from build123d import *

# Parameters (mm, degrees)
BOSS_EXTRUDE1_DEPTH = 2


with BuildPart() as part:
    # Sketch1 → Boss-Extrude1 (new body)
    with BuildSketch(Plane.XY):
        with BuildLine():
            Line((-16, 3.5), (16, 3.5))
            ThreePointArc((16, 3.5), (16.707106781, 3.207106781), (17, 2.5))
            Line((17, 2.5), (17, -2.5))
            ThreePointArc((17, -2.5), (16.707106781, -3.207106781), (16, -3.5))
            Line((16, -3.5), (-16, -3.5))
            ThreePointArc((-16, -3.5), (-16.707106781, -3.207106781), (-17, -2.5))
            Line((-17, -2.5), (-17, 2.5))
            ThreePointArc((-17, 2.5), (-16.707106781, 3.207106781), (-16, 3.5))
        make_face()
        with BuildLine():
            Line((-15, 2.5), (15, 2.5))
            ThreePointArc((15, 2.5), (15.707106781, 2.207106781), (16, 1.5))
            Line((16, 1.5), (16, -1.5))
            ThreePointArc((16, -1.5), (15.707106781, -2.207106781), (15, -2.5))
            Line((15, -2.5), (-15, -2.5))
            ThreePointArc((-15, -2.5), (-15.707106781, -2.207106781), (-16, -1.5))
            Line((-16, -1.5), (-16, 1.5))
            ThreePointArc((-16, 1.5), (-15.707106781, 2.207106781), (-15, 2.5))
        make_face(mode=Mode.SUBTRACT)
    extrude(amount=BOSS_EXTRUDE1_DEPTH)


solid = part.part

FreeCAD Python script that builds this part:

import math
import FreeCAD as App
import Part
import Sketcher

doc = App.newDocument("Part")
params = doc.addObject("Spreadsheet::Sheet", "Params")
for row, (alias, value) in enumerate([
    ("sketch1_radius", "1 mm"),
    ("sketch1_width", "32 mm"),
    ("sketch1_height", "5 mm"),
    ("pad1_length", "2 mm"),
], start=1):
    params.set(f"A{row}", alias)
    params.set(f"B{row}", "=" + value)
    params.setAlias(f"B{row}", alias)

body = doc.addObject("PartDesign::Body", "Body")

sketch1 = body.newObject("Sketcher::SketchObject", "Sketch")
sketch1.AttachmentSupport = (doc.getObject("XY_Plane"), [""])
sketch1.MapMode = "FlatFace"
sketch1.addGeometry([
    Part.LineSegment(App.Vector(16, 3.5, 0), App.Vector(-16, 3.5, 0)),
    Part.ArcOfCircle(Part.Circle(App.Vector(-16, 2.5, 0), App.Vector(0, 0, 1), 1), math.radians(90), math.radians(180)),
    Part.LineSegment(App.Vector(-17, 2.5, 0), App.Vector(-17, -2.5, 0)),
    Part.ArcOfCircle(Part.Circle(App.Vector(-16, -2.5, 0), App.Vector(0, 0, 1), 1), math.radians(-180), math.radians(-90)),
    Part.LineSegment(App.Vector(-16, -3.5, 0), App.Vector(16, -3.5, 0)),
    Part.ArcOfCircle(Part.Circle(App.Vector(16, -2.5, 0), App.Vector(0, 0, 1), 1), math.radians(-90), math.radians(0)),
    Part.LineSegment(App.Vector(17, -2.5, 0), App.Vector(17, 2.5, 0)),
    Part.ArcOfCircle(Part.Circle(App.Vector(16, 2.5, 0), App.Vector(0, 0, 1), 1), math.radians(0), math.radians(90)),
    Part.LineSegment(App.Vector(-15, 2.5, 0), App.Vector(15, 2.5, 0)),
    Part.ArcOfCircle(Part.Circle(App.Vector(15, 1.5, 0), App.Vector(0, 0, 1), 1), math.radians(0), math.radians(90)),
    Part.LineSegment(App.Vector(16, 1.5, 0), App.Vector(16, -1.5, 0)),
    Part.ArcOfCircle(Part.Circle(App.Vector(15, -1.5, 0), App.Vector(0, 0, 1), 1), math.radians(-90), math.radians(0)),
    Part.LineSegment(App.Vector(15, -2.5, 0), App.Vector(-15, -2.5, 0)),
    Part.ArcOfCircle(Part.Circle(App.Vector(-15, -1.5, 0), App.Vector(0, 0, 1), 1), math.radians(-180), math.radians(-90)),
    Part.LineSegment(App.Vector(-16, -1.5, 0), App.Vector(-16, 1.5, 0)),
    Part.ArcOfCircle(Part.Circle(App.Vector(-15, 1.5, 0), App.Vector(0, 0, 1), 1), math.radians(90), math.radians(180)),
], False)
sketch1.addConstraint([
    Sketcher.Constraint("Tangent", 0, 2, 1, 1),
    Sketcher.Constraint("Tangent", 1, 2, 2, 1),
    Sketcher.Constraint("Tangent", 2, 2, 3, 1),
    Sketcher.Constraint("Tangent", 3, 2, 4, 1),
    Sketcher.Constraint("Tangent", 4, 2, 5, 1),
    Sketcher.Constraint("Tangent", 5, 2, 6, 1),
    Sketcher.Constraint("Tangent", 6, 2, 7, 1),
    Sketcher.Constraint("Tangent", 7, 2, 0, 1),
    Sketcher.Constraint("Tangent", 8, 2, 9, 2),
    Sketcher.Constraint("Tangent", 9, 1, 10, 1),
    Sketcher.Constraint("Tangent", 10, 2, 11, 2),
    Sketcher.Constraint("Tangent", 11, 1, 12, 1),
    Sketcher.Constraint("Tangent", 12, 2, 13, 2),
    Sketcher.Constraint("Tangent", 13, 1, 14, 1),
    Sketcher.Constraint("Tangent", 14, 2, 15, 2),
    Sketcher.Constraint("Tangent", 15, 1, 8, 1),
    Sketcher.Constraint("Horizontal", 0),
    Sketcher.Constraint("Vertical", 2),
    Sketcher.Constraint("Horizontal", 4),
    Sketcher.Constraint("Vertical", 6),
    Sketcher.Constraint("Horizontal", 8),
    Sketcher.Constraint("Vertical", 10),
    Sketcher.Constraint("Horizontal", 12),
    Sketcher.Constraint("Vertical", 14),
    Sketcher.Constraint("Equal", 1, 3),
    Sketcher.Constraint("Equal", 3, 5),
    Sketcher.Constraint("Equal", 5, 7),
    Sketcher.Constraint("Equal", 7, 9),
    Sketcher.Constraint("Equal", 9, 11),
    Sketcher.Constraint("Equal", 11, 13),
    Sketcher.Constraint("Equal", 13, 15),
    Sketcher.Constraint("Symmetric", 1, 3, 5, 3, -1, 1),
    Sketcher.Constraint("Symmetric", 9, 3, 13, 3, -1, 1),
    Sketcher.Constraint("Horizontal", 6, 2, 8, 2),
    Sketcher.Constraint("Vertical", 7, 2, 9, 1),
    Sketcher.Constraint("Radius", 1, 1.0),
    Sketcher.Constraint("DistanceX", 0, 2, 0, 1, 32.0),
    Sketcher.Constraint("DistanceY", 2, 2, 2, 1, 5.0),
])
sketch1.setExpression("Constraints[35]", "Params.sketch1_radius")
sketch1.setExpression("Constraints[36]", "Params.sketch1_width")
sketch1.setExpression("Constraints[37]", "Params.sketch1_height")
pad1 = body.newObject("PartDesign::Pad", "Pad")
pad1.Profile = sketch1
pad1.setExpression("Length", "Params.pad1_length")

doc.recompute()
